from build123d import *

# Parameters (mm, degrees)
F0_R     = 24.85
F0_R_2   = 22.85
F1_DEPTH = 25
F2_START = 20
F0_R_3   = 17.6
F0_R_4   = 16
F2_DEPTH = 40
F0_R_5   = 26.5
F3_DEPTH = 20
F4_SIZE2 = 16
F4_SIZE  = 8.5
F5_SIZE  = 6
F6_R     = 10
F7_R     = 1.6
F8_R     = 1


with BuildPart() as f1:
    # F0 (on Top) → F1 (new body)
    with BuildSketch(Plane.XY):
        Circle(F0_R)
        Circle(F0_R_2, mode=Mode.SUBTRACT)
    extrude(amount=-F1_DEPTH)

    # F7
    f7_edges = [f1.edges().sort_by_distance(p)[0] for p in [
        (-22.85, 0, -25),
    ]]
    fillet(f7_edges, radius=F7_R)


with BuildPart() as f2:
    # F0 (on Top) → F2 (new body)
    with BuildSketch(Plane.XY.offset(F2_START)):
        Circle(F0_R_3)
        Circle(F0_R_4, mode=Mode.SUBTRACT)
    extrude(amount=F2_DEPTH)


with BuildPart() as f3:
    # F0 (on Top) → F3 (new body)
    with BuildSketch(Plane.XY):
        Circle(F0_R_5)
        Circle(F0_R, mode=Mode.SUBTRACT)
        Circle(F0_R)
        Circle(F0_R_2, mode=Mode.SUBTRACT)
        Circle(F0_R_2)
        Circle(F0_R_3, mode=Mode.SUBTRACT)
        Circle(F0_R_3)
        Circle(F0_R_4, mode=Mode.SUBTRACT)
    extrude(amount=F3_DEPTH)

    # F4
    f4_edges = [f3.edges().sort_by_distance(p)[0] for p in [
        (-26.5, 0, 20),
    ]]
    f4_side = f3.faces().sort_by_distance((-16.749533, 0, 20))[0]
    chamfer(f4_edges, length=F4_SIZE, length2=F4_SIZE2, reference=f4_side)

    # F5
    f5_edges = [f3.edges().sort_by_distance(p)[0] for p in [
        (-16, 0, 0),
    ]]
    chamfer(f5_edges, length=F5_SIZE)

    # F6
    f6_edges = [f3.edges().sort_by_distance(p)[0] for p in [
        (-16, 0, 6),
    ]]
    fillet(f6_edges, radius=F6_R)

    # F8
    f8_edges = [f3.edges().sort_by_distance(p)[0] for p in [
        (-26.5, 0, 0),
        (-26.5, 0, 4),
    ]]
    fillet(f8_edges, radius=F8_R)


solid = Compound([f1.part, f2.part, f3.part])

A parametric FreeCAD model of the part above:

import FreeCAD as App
import Part
import Sketcher
from FreeCAD import Vector
Q = App.Units.Quantity


def edges_at(feature, points):
    """Names of the edges that pass closest to the given points."""
    edges = feature.Shape.Edges
    near = lambda p: min(range(len(edges)), key=lambda i: edges[i].distToShape(Part.Vertex(*p))[0])
    return sorted({f"Edge{near(p) + 1}" for p in points})

doc = App.newDocument("Part")
params = doc.addObject("Spreadsheet::Sheet", "Params")
for row, (alias, value) in enumerate([
    ("sketch1_diameter", "49.7 mm"),
    ("sketch1_diameter2", "45.7 mm"),
    ("pad1_length", "25 mm"),
    ("fillet_radius", "1.6 mm"),
    ("sketch2_diameter", "32 mm"),
    ("sketch2_diameter2", "35.2 mm"),
    ("pad2_length", "40 mm"),
    ("sketch3_diameter", "53 mm"),
    ("sketch3_diameter2", "32 mm"),
    ("pad3_length", "20 mm"),
    ("chamfer_size", "8.5 mm"),
    ("chamfer_size2", "16 mm"),
    ("chamfer2_size", "6 mm"),
    ("fillet2_radius", "10 mm"),
    ("fillet3_radius", "1 mm"),
], start=1):
    params.set(f"A{row}", alias)
    params.set(f"B{row}", "=" + value)
    params.setAlias(f"B{row}", alias)

body = doc.addObject("PartDesign::Body", "Body")

# Sketch on XY plane
sketch1 = body.newObject("Sketcher::SketchObject", "Sketch")
sketch1.AttachmentSupport = (doc.getObject("XY_Plane"), [""])
sketch1.MapMode = "FlatFace"
sketch1.addGeometry(Part.Circle(Vector(0, 0, 0), Vector(0, 0, 1), 25), False)
sketch1.addGeometry(Part.Circle(Vector(0, 0, 0), Vector(0, 0, 1), 23), False)
sketch1.addConstraint(Sketcher.Constraint("Coincident", 0, 3, -1, 1))
sketch1.addConstraint(Sketcher.Constraint("Coincident", 1, 3, -1, 1))
sketch1.addConstraint(Sketcher.Constraint("Diameter", 0, Q("49.7 mm")))
sketch1.addConstraint(Sketcher.Constraint("Diameter", 1, Q("45.7 mm")))
sketch1.setExpression("Constraints[2]", "Params.sketch1_diameter")
sketch1.setExpression("Constraints[3]", "Params.sketch1_diameter2")
pad1 = body.newObject("PartDesign::Pad", "Pad")
pad1.Profile = sketch1
pad1.setExpression("Length", "Params.pad1_length")
pad1.Reversed = True
doc.recompute()

fillet = body.newObject("PartDesign::Fillet", "Fillet")
fillet.Base = (pad1, edges_at(pad1, [(-22.85, 0, -25)]))
fillet.setExpression("Radius", "Params.fillet_radius")
body2 = doc.addObject("PartDesign::Body", "Body001")

# Sketch on XY plane
sketch2 = body2.newObject("Sketcher::SketchObject", "Sketch001")
sketch2.AttachmentSupport = (doc.getObject("XY_Plane001"), [""])
sketch2.MapMode = "FlatFace"
sketch2.AttachmentOffset = App.Placement(Vector(0, 0, 20), App.Rotation())
sketch2.addGeometry(Part.Circle(Vector(0, 0, 0), Vector(0, 0, 1), 18), False)
sketch2.addGeometry(Part.Circle(Vector(0, 0, 0), Vector(0, 0, 1), 16), False)
sketch2.addConstraint(Sketcher.Constraint("Coincident", 0, 3, -1, 1))
sketch2.addConstraint(Sketcher.Constraint("Coincident", 1, 3, -1, 1))
sketch2.addConstraint(Sketcher.Constraint("Diameter", 1, Q("32 mm")))
sketch2.addConstraint(Sketcher.Constraint("Diameter", 0, Q("35.2 mm")))
sketch2.setExpression("Constraints[2]", "Params.sketch2_diameter")
sketch2.setExpression("Constraints[3]", "Params.sketch2_diameter2")
pad2 = body2.newObject("PartDesign::Pad", "Pad001")
pad2.Profile = sketch2
pad2.setExpression("Length", "Params.pad2_length")
body3 = doc.addObject("PartDesign::Body", "Body002")

# Sketch on XY plane
sketch3 = body3.newObject("Sketcher::SketchObject", "Sketch002")
sketch3.AttachmentSupport = (doc.getObject("XY_Plane002"), [""])
sketch3.MapMode = "FlatFace"
sketch3.addGeometry(Part.Circle(Vector(0, 0, 0), Vector(0, 0, 1), 26), False)
sketch3.addGeometry(Part.Circle(Vector(0, 0, 0), Vector(0, 0, 1), 16), False)
sketch3.addConstraint(Sketcher.Constraint("Coincident", 0, 3, -1, 1))
sketch3.addConstraint(Sketcher.Constraint("Coincident", 1, 3, -1, 1))
sketch3.addConstraint(Sketcher.Constraint("Diameter", 0, Q("53 mm")))
sketch3.addConstraint(Sketcher.Constraint("Diameter", 1, Q("32 mm")))
sketch3.setExpression("Constraints[2]", "Params.sketch3_diameter")
sketch3.setExpression("Constraints[3]", "Params.sketch3_diameter2")
pad3 = body3.newObject("PartDesign::Pad", "Pad002")
pad3.Profile = sketch3
pad3.setExpression("Length", "Params.pad3_length")
doc.recompute()

chamfer = body3.newObject("PartDesign::Chamfer", "Chamfer")
chamfer.Base = (pad3, edges_at(pad3, [(-26.5, 0, 20)]))
chamfer.ChamferType = "Two distances"
chamfer.setExpression("Size", "Params.chamfer_size")
chamfer.setExpression("Size2", "Params.chamfer_size2")
chamfer.FlipDirection = True
doc.recompute()

chamfer2 = body3.newObject("PartDesign::Chamfer", "Chamfer001")
chamfer2.Base = (chamfer, edges_at(chamfer, [(-16, 0, 0)]))
chamfer2.setExpression("Size", "Params.chamfer2_size")
doc.recompute()

fillet2 = body3.newObject("PartDesign::Fillet", "Fillet001")
fillet2.Base = (chamfer2, edges_at(chamfer2, [(-16, 0, 6)]))
fillet2.setExpression("Radius", "Params.fillet2_radius")
doc.recompute()

fillet3 = body3.newObject("PartDesign::Fillet", "Fillet002")
fillet3.Base = (fillet2, edges_at(fillet2, [(-26.5, 0, 0), (-26.5, 0, 4)]))
fillet3.setExpression("Radius", "Params.fillet3_radius")

doc.recompute()
